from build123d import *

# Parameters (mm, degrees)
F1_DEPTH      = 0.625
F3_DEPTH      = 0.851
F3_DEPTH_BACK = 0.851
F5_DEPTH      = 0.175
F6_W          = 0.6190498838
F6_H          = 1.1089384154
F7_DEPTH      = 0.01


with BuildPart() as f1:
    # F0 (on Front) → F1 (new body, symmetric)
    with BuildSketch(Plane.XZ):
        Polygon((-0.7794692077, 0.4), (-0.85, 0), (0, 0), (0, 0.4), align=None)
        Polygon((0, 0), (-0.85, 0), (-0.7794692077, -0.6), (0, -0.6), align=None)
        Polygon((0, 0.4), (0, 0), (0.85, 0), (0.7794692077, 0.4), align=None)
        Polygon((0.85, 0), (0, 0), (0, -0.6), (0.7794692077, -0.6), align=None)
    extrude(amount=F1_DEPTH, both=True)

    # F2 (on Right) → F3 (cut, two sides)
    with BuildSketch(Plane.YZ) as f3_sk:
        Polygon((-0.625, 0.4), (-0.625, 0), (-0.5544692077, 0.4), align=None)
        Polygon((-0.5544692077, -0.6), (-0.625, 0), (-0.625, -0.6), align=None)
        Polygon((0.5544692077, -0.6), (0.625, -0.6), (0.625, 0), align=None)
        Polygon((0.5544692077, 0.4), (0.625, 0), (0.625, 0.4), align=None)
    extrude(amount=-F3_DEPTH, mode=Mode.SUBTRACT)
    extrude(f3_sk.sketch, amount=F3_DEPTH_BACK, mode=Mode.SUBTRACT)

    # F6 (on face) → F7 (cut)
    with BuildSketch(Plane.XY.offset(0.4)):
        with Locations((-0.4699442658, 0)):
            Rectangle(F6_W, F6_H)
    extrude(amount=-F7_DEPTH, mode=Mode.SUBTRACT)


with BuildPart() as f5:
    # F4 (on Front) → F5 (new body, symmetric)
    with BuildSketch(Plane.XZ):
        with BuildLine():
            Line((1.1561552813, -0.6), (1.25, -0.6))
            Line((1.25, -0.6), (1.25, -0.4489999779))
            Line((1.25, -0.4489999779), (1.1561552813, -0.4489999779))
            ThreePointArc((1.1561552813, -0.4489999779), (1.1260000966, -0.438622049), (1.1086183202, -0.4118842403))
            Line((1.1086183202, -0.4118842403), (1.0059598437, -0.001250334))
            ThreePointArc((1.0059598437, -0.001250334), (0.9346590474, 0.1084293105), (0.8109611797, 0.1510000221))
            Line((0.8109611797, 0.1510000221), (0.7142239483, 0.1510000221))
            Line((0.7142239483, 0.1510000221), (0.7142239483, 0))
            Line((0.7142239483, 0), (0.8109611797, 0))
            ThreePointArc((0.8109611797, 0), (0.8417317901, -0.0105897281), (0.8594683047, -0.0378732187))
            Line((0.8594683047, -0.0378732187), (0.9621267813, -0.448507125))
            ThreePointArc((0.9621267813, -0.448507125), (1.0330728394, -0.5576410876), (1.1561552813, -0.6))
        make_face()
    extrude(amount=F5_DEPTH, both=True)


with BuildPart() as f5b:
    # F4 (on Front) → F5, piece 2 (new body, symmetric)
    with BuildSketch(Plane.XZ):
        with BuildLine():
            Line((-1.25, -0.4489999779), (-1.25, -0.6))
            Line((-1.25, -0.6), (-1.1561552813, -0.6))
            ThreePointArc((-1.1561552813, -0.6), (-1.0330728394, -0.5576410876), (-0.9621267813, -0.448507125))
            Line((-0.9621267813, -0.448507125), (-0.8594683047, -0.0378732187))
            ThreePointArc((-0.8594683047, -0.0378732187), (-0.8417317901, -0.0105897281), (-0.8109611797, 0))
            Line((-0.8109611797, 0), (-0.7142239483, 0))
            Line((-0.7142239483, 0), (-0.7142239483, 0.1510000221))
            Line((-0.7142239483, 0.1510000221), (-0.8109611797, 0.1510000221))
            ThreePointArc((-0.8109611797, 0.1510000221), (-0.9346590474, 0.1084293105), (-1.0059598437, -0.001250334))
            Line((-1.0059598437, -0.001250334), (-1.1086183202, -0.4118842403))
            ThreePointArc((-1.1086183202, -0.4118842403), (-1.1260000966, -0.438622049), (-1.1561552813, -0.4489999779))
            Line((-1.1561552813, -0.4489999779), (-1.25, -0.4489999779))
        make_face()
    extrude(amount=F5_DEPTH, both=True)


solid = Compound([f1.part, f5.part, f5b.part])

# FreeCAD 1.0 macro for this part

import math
import FreeCAD as App
import Part
import Sketcher

V = App.Vector
Q = App.Units.Quantity


def add_polygon(sketch, points):
    """Adds a closed chain of lines whose ends are joined by coincident constraints."""
    first, n = sketch.GeometryCount, len(points)
    for a, b in zip(points, points[1:] + points[:1]):
        sketch.addGeometry(Part.LineSegment(App.Vector(*a, 0), App.Vector(*b, 0)), False)
    for i in range(n):
        sketch.addConstraint(Sketcher.Constraint("Coincident", first + i, 2, first + (i + 1) % n, 1))

doc = App.newDocument("Part")
body = doc.addObject("PartDesign::Body", "Body")

sketch1 = body.newObject("Sketcher::SketchObject", "Sketch")
sketch1.AttachmentSupport = (doc.getObject("XZ_Plane"), [""])
sketch1.MapMode = "FlatFace"
add_polygon(sketch1, [(-0.78, 0.4), (-0.85, 0), (-0.78, -0.6), (0.78, -0.6), (0.85, 0), (0.78, 0.4)])
sketch1.addConstraint([
    Sketcher.Constraint("Horizontal", 2),
    Sketcher.Constraint("Horizontal", 5),
    Sketcher.Constraint("Symmetric", 0, 2, 3, 2, -1, 1),
    Sketcher.Constraint("PointOnObject", 0, 2, -1),
    Sketcher.Constraint("Vertical", 2, 2, 4, 2),
    Sketcher.Constraint("Vertical", 1, 2, 5, 2),
    Sketcher.Constraint("Equal", 1, 3),
    Sketcher.Constraint("Angle", 0, Q("-100 deg")),
    Sketcher.Constraint("DistanceY", 2, 2, 4, 2, 1.0),
    Sketcher.Constraint("DistanceY", 1, 2, -1, 1, 0.6),
    Sketcher.Constraint("DistanceX", 0, 2, 3, 2, 1.7),
])
pad1 = body.newObject("PartDesign::Pad", "Pad")
pad1.Profile = sketch1
pad1.Length = 1.25
pad1.Midplane = True

sketch2 = body.newObject("Sketcher::SketchObject", "Sketch001")
sketch2.AttachmentSupport = (doc.getObject("YZ_Plane"), [""])
sketch2.MapMode = "FlatFace"
add_polygon(sketch2, [(-0.62, 0.4), (-0.62, 0), (-0.55, 0.4)])
add_polygon(sketch2, [(-0.55, -0.6), (-0.62, 0), (-0.62, -0.6)])
add_polygon(sketch2, [(0.55, -0.6), (0.62, -0.6), (0.62, 0)])
add_polygon(sketch2, [(0.55, 0.4), (0.62, 0), (0.62, 0.4)])
sketch2.addConstraint([
    Sketcher.Constraint("Vertical", 0),
    Sketcher.Constraint("Horizontal", 2),
    Sketcher.Constraint("Vertical", 4),
    Sketcher.Constraint("Horizontal", 5),
    Sketcher.Constraint("Horizontal", 6),
    Sketcher.Constraint("Vertical", 7),
    Sketcher.Constraint("Vertical", 10),
    Sketcher.Constraint("Horizontal", 11),
    Sketcher.Constraint("Coincident", 3, 2, 0, 2),
    Sketcher.Constraint("Coincident", 9, 2, 7, 2),
    Sketcher.Constraint("Symmetric", 0, 2, 7, 2, -1, 1),
    Sketcher.Constraint("Symmetric", 5, 2, 8, 2, -2),
    Sketcher.Constraint("Symmetric", 1, 2, 11, 2, -2),
    Sketcher.Constraint("PointOnObject", 0, 2, -1),
    Sketcher.Constraint("Vertical", 1, 2, 5, 2),
    Sketcher.Constraint("Angle", 1, Q("80 deg")),
    Sketcher.Constraint("DistanceY", 0, 2, 0, 1, 0.4),
    Sketcher.Constraint("DistanceY", 4, 2, 4, 1, 0.6),
    Sketcher.Constraint("DistanceX", 4, 2, 6, 2, 1.25),
])
pocket1 = body.newObject("PartDesign::Pocket", "Pocket")
pocket1.Profile = sketch2
pocket1.Type = "ThroughAll"
pocket1.Midplane = True

sketch3 = body.newObject("Sketcher::SketchObject", "Sketch002")
sketch3.AttachmentSupport = (doc.getObject("XY_Plane"), [""])
sketch3.MapMode = "FlatFace"
sketch3.AttachmentOffset = App.Placement(V(0, 0, 0.4), App.Rotation())
add_polygon(sketch3, [(-0.8, 0.6), (-0.8, -0.6), (-0.2, -0.6), (-0.2, 0.6)])
sketch3.addConstraint([
    Sketcher.Constraint("Vertical", 0),
    Sketcher.Constraint("Horizontal", 1),
    Sketcher.Constraint("Vertical", 2),
    Sketcher.Constraint("Horizontal", 3),
    Sketcher.Constraint("DistanceX", 1, 1, 1, 2, 0.61905),
    Sketcher.Constraint("DistanceY", 0, 2, 0, 1, 1.108938),
    Sketcher.Constraint("DistanceX", 0, 2, -1, 1, 0.779469),
    Sketcher.Constraint("DistanceY", 0, 2, -1, 1, 0.554469),
])
pocket2 = body.newObject("PartDesign::Pocket", "Pocket001")
pocket2.Profile = sketch3
pocket2.Length = 0.01
body2 = doc.addObject("PartDesign::Body", "Body001")

sketch4 = body2.newObject("Sketcher::SketchObject", "Sketch003")
sketch4.AttachmentSupport = (doc.getObject("XZ_Plane001"), [""])
sketch4.MapMode = "FlatFace"
sketch4.addGeometry([
    Part.LineSegment(V(1.156, -0.6, 0), V(1.25, -0.6, 0)),
    Part.LineSegment(V(1.25, -0.6, 0), V(1.25, -0.449, 0)),
    Part.LineSegment(V(1.25, -0.449, 0), V(1.156, -0.449, 0)),
    Part.ArcOfCircle(Part.Circle(V(1.156, -0.4, 0), V(0, 0, 1), 0.049), math.radians(-166), math.radians(-90)),
    Part.LineSegment(V(1.109, -0.412, 0), V(1.006, -0.001, 0)),
    Part.ArcOfCircle(Part.Circle(V(0.811, -0.05, 0), V(0, 0, 1), 0.201), math.radians(14), math.radians(90)),
    Part.LineSegment(V(0.811, 0.151, 0), V(0.714, 0.151, 0)),
    Part.LineSegment(V(0.714, 0.151, 0), V(0.714, 0, 0)),
    Part.LineSegment(V(0.714, 0, 0), V(0.811, 0, 0)),
    Part.ArcOfCircle(Part.Circle(V(0.811, -0.05, 0), V(0, 0, 1), 0.05), math.radians(14), math.radians(90)),
    Part.LineSegment(V(0.859, -0.038, 0), V(0.962, -0.449, 0)),
    Part.ArcOfCircle(Part.Circle(V(1.156, -0.4, 0), V(0, 0, 1), 0.2), math.radians(-166), math.radians(-90)),
], False)
sketch4.addConstraint([
    Sketcher.Constraint("Coincident", 0, 2, 1, 1),
    Sketcher.Constraint("Coincident", 1, 2, 2, 1),
    Sketcher.Constraint("Tangent", 2, 2, 3, 2),
    Sketcher.Constraint("Tangent", 3, 1, 4, 1),
    Sketcher.Constraint("Tangent", 4, 2, 5, 1),
    Sketcher.Constraint("Tangent", 5, 2, 6, 1),
    Sketcher.Constraint("Coincident", 6, 2, 7, 1),
    Sketcher.Constraint("Coincident", 7, 2, 8, 1),
    Sketcher.Constraint("Tangent", 8, 2, 9, 2),
    Sketcher.Constraint("Tangent", 9, 1, 10, 1),
    Sketcher.Constraint("Tangent", 10, 2, 11, 1),
    Sketcher.Constraint("Tangent", 11, 2, 0, 1),
    Sketcher.Constraint("Horizontal", 0),
    Sketcher.Constraint("Vertical", 1),
    Sketcher.Constraint("Horizontal", 2),
    Sketcher.Constraint("Horizontal", 6),
    Sketcher.Constraint("Vertical", 7),
    Sketcher.Constraint("Horizontal", 8),
    Sketcher.Constraint("Coincident", 9, 3, 5, 3),
    Sketcher.Constraint("Coincident", 11, 3, 3, 3),
    Sketcher.Constraint("PointOnObject", 7, 2, -1),
    Sketcher.Constraint("Parallel", 4, 10),
    Sketcher.Constraint("Radius", 11, 0.2),
    Sketcher.Constraint("Radius", 9, 0.05),
    Sketcher.Constraint("Radius", 3, 0.049),
    Sketcher.Constraint("DistanceY", 3, 3, -1, 1, 0.4),
    Sketcher.Constraint("DistanceX", -1, 1, 0, 2, 1.25),
    Sketcher.Constraint("DistanceX", 5, 3, 4, 2, 0.194999),
    Sketcher.Constraint("DistanceX", 0, 1, 0, 2, 0.093845),
    Sketcher.Constraint("DistanceX", 6, 2, 6, 1, 0.096737),
])
pad2 = body2.newObject("PartDesign::Pad", "Pad001")
pad2.Profile = sketch4
pad2.Length = 0.35
pad2.Midplane = True
body3 = doc.addObject("PartDesign::Body", "Body002")

sketch5 = body3.newObject("Sketcher::SketchObject", "Sketch004")
sketch5.AttachmentSupport = (doc.getObject("XZ_Plane002"), [""])
sketch5.MapMode = "FlatFace"
sketch5.addGeometry([
    Part.LineSegment(V(-1.25, -0.449, 0), V(-1.25, -0.6, 0)),
    Part.LineSegment(V(-1.25, -0.6, 0), V(-1.156, -0.6, 0)),
    Part.ArcOfCircle(Part.Circle(V(-1.156, -0.4, 0), V(0, 0, 1), 0.2), math.radians(-90), math.radians(-14)),
    Part.LineSegment(V(-0.962, -0.449, 0), V(-0.859, -0.038, 0)),
    Part.ArcOfCircle(Part.Circle(V(-0.811, -0.05, 0), V(0, 0, 1), 0.05), math.radians(90), math.radians(166)),
    Part.LineSegment(V(-0.811, 0, 0), V(-0.714, 0, 0)),
    Part.LineSegment(V(-0.714, 0, 0), V(-0.714, 0.151, 0)),
    Part.LineSegment(V(-0.714, 0.151, 0), V(-0.811, 0.151, 0)),
    Part.ArcOfCircle(Part.Circle(V(-0.811, -0.05, 0), V(0, 0, 1), 0.201), math.radians(90), math.radians(166)),
    Part.LineSegment(V(-1.006, -0.001, 0), V(-1.109, -0.412, 0)),
    Part.ArcOfCircle(Part.Circle(V(-1.156, -0.4, 0), V(0, 0, 1), 0.049), math.radians(-90), math.radians(-14)),
    Part.LineSegment(V(-1.156, -0.449, 0), V(-1.25, -0.449, 0)),
], False)
sketch5.addConstraint([
    Sketcher.Constraint("Coincident", 0, 2, 1, 1),
    Sketcher.Constraint("Tangent", 1, 2, 2, 1),
    Sketcher.Constraint("Tangent", 2, 2, 3, 1),
    Sketcher.Constraint("Tangent", 3, 2, 4, 2),
    Sketcher.Constraint("Tangent", 4, 1, 5, 1),
    Sketcher.Constraint("Coincident", 5, 2, 6, 1),
    Sketcher.Constraint("Coincident", 6, 2, 7, 1),
    Sketcher.Constraint("Tangent", 7, 2, 8, 1),
    Sketcher.Constraint("Tangent", 8, 2, 9, 1),
    Sketcher.Constraint("Tangent", 9, 2, 10, 2),
    Sketcher.Constraint("Tangent", 10, 1, 11, 1),
    Sketcher.Constraint("Coincident", 11, 2, 0, 1),
    Sketcher.Constraint("Vertical", 0),
    Sketcher.Constraint("Horizontal", 1),
    Sketcher.Constraint("Horizontal", 5),
    Sketcher.Constraint("Vertical", 6),
    Sketcher.Constraint("Horizontal", 7),
    Sketcher.Constraint("Horizontal", 11),
    Sketcher.Constraint("Coincident", 8, 3, 4, 3),
    Sketcher.Constraint("Coincident", 10, 3, 2, 3),
    Sketcher.Constraint("PointOnObject", 4, 1, -1),
    Sketcher.Constraint("Parallel", 3, 9),
    Sketcher.Constraint("Radius", 2, 0.2),
    Sketcher.Constraint("Radius", 4, 0.05),
    Sketcher.Constraint("Radius", 8, 0.201),
    Sketcher.Constraint("DistanceY", 2, 3, -1, 1, 0.4),
    Sketcher.Constraint("DistanceX", 0, 2, -1, 1, 1.25),
    Sketcher.Constraint("DistanceX", 8, 2, 4, 1, 0.194999),
    Sketcher.Constraint("DistanceX", 1, 1, 1, 2, 0.093845),
    Sketcher.Constraint("DistanceX", 5, 1, 5, 2, 0.096737),
])
pad3 = body3.newObject("PartDesign::Pad", "Pad002")
pad3.Profile = sketch5
pad3.Length = 0.35
pad3.Midplane = True

doc.recompute()
